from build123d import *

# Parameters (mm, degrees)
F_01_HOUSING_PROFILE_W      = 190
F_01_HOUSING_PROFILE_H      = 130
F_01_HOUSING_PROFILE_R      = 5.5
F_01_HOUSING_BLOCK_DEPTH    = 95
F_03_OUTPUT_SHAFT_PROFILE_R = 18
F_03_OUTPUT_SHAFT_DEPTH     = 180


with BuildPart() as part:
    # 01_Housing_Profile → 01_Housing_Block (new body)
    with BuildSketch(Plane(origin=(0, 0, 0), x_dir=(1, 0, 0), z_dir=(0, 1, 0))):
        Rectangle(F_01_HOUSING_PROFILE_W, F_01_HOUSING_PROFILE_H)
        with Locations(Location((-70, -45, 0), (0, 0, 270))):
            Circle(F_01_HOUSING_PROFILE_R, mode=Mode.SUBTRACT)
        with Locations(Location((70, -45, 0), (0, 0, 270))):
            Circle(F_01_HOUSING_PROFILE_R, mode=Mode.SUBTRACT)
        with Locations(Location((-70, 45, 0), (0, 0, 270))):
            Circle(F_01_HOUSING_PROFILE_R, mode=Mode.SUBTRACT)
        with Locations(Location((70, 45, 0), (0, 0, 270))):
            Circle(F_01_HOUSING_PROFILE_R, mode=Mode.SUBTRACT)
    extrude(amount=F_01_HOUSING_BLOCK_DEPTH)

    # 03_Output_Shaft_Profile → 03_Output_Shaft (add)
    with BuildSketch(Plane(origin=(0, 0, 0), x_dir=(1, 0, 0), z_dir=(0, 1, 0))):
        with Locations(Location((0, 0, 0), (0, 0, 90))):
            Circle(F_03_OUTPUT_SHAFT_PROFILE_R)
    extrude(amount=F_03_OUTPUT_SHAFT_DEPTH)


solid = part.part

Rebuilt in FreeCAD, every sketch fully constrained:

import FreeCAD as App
import Part
import Sketcher
Q = App.Units.Quantity

doc = App.newDocument("Part")
body = doc.addObject("PartDesign::Body", "Body")

sketch1 = doc.addObject("Sketcher::SketchObject", "Sketch")
body.addObject(sketch1)
sketch1.AttachmentSupport = (doc.XZ_Plane, [""])
sketch1.MapMode = "FlatFace"
sketch1.addGeometry(Part.LineSegment(App.Vector(-95, -65, 0), App.Vector(-95, 65, 0)), False)
sketch1.addGeometry(Part.LineSegment(App.Vector(-95, 65, 0), App.Vector(95, 65, 0)), False)
sketch1.addGeometry(Part.LineSegment(App.Vector(95, 65, 0), App.Vector(95, -65, 0)), False)
sketch1.addGeometry(Part.LineSegment(App.Vector(95, -65, 0), App.Vector(-95, -65, 0)), False)
sketch1.addGeometry(Part.Circle(App.Vector(-70, 45, 0), App.Vector(0, 0, 1), 6), False)
sketch1.addGeometry(Part.Circle(App.Vector(70, 45, 0), App.Vector(0, 0, 1), 6), False)
sketch1.addGeometry(Part.Circle(App.Vector(-70, -45, 0), App.Vector(0, 0, 1), 6), False)
sketch1.addGeometry(Part.Circle(App.Vector(70, -45, 0), App.Vector(0, 0, 1), 6), False)
sketch1.addConstraint(Sketcher.Constraint("Coincident", 0, 2, 1, 1))
sketch1.addConstraint(Sketcher.Constraint("Coincident", 1, 2, 2, 1))
sketch1.addConstraint(Sketcher.Constraint("Coincident", 2, 2, 3, 1))
sketch1.addConstraint(Sketcher.Constraint("Coincident", 3, 2, 0, 1))
sketch1.addConstraint(Sketcher.Constraint("Vertical", 0))
sketch1.addConstraint(Sketcher.Constraint("Horizontal", 1))
sketch1.addConstraint(Sketcher.Constraint("Vertical", 2))
sketch1.addConstraint(Sketcher.Constraint("Horizontal", 3))
sketch1.addConstraint(Sketcher.Constraint("Equal", 4, 5))
sketch1.addConstraint(Sketcher.Constraint("Equal", 5, 6))
sketch1.addConstraint(Sketcher.Constraint("Equal", 6, 7))
sketch1.addConstraint(Sketcher.Constraint("Symmetric", 5, 3, 6, 3, -1, 1))
sketch1.addConstraint(Sketcher.Constraint("Symmetric", 4, 3, 7, 3, -1, 1))
sketch1.addConstraint(Sketcher.Constraint("Symmetric", 0, 2, 2, 2, -1, 1))
sketch1.addConstraint(Sketcher.Constraint("Symmetric", 4, 3, 5, 3, -2))
sketch1.addConstraint(Sketcher.Constraint("Diameter", 4, Q("11 mm")))
sketch1.addConstraint(Sketcher.Constraint("DistanceX", 1, 1, 1, 2, Q("190 mm")))
sketch1.addConstraint(Sketcher.Constraint("DistanceY", 0, 1, 0, 2, Q("130 mm")))
sketch1.addConstraint(Sketcher.Constraint("DistanceX", 4, 3, -1, 1, Q("70 mm")))
sketch1.addConstraint(Sketcher.Constraint("DistanceY", -1, 1, 4, 3, Q("45 mm")))
pad1 = doc.addObject("PartDesign::Pad", "Pad")
body.addObject(pad1)
pad1.Profile = sketch1
pad1.Length = 95
pad1.Reversed = True

sketch2 = doc.addObject("Sketcher::SketchObject", "Sketch001")
body.addObject(sketch2)
sketch2.AttachmentSupport = (doc.XZ_Plane, [""])
sketch2.MapMode = "FlatFace"
sketch2.addGeometry(Part.Circle(App.Vector(0, 0, 0), App.Vector(0, 0, 1), 18), False)
sketch2.addConstraint(Sketcher.Constraint("Coincident", 0, 3, -1, 1))
sketch2.addConstraint(Sketcher.Constraint("Diameter", 0, Q("36 mm")))
pad2 = doc.addObject("PartDesign::Pad", "Pad001")
body.addObject(pad2)
pad2.Profile = sketch2
pad2.Length = 180
pad2.Reversed = True

doc.recompute()
